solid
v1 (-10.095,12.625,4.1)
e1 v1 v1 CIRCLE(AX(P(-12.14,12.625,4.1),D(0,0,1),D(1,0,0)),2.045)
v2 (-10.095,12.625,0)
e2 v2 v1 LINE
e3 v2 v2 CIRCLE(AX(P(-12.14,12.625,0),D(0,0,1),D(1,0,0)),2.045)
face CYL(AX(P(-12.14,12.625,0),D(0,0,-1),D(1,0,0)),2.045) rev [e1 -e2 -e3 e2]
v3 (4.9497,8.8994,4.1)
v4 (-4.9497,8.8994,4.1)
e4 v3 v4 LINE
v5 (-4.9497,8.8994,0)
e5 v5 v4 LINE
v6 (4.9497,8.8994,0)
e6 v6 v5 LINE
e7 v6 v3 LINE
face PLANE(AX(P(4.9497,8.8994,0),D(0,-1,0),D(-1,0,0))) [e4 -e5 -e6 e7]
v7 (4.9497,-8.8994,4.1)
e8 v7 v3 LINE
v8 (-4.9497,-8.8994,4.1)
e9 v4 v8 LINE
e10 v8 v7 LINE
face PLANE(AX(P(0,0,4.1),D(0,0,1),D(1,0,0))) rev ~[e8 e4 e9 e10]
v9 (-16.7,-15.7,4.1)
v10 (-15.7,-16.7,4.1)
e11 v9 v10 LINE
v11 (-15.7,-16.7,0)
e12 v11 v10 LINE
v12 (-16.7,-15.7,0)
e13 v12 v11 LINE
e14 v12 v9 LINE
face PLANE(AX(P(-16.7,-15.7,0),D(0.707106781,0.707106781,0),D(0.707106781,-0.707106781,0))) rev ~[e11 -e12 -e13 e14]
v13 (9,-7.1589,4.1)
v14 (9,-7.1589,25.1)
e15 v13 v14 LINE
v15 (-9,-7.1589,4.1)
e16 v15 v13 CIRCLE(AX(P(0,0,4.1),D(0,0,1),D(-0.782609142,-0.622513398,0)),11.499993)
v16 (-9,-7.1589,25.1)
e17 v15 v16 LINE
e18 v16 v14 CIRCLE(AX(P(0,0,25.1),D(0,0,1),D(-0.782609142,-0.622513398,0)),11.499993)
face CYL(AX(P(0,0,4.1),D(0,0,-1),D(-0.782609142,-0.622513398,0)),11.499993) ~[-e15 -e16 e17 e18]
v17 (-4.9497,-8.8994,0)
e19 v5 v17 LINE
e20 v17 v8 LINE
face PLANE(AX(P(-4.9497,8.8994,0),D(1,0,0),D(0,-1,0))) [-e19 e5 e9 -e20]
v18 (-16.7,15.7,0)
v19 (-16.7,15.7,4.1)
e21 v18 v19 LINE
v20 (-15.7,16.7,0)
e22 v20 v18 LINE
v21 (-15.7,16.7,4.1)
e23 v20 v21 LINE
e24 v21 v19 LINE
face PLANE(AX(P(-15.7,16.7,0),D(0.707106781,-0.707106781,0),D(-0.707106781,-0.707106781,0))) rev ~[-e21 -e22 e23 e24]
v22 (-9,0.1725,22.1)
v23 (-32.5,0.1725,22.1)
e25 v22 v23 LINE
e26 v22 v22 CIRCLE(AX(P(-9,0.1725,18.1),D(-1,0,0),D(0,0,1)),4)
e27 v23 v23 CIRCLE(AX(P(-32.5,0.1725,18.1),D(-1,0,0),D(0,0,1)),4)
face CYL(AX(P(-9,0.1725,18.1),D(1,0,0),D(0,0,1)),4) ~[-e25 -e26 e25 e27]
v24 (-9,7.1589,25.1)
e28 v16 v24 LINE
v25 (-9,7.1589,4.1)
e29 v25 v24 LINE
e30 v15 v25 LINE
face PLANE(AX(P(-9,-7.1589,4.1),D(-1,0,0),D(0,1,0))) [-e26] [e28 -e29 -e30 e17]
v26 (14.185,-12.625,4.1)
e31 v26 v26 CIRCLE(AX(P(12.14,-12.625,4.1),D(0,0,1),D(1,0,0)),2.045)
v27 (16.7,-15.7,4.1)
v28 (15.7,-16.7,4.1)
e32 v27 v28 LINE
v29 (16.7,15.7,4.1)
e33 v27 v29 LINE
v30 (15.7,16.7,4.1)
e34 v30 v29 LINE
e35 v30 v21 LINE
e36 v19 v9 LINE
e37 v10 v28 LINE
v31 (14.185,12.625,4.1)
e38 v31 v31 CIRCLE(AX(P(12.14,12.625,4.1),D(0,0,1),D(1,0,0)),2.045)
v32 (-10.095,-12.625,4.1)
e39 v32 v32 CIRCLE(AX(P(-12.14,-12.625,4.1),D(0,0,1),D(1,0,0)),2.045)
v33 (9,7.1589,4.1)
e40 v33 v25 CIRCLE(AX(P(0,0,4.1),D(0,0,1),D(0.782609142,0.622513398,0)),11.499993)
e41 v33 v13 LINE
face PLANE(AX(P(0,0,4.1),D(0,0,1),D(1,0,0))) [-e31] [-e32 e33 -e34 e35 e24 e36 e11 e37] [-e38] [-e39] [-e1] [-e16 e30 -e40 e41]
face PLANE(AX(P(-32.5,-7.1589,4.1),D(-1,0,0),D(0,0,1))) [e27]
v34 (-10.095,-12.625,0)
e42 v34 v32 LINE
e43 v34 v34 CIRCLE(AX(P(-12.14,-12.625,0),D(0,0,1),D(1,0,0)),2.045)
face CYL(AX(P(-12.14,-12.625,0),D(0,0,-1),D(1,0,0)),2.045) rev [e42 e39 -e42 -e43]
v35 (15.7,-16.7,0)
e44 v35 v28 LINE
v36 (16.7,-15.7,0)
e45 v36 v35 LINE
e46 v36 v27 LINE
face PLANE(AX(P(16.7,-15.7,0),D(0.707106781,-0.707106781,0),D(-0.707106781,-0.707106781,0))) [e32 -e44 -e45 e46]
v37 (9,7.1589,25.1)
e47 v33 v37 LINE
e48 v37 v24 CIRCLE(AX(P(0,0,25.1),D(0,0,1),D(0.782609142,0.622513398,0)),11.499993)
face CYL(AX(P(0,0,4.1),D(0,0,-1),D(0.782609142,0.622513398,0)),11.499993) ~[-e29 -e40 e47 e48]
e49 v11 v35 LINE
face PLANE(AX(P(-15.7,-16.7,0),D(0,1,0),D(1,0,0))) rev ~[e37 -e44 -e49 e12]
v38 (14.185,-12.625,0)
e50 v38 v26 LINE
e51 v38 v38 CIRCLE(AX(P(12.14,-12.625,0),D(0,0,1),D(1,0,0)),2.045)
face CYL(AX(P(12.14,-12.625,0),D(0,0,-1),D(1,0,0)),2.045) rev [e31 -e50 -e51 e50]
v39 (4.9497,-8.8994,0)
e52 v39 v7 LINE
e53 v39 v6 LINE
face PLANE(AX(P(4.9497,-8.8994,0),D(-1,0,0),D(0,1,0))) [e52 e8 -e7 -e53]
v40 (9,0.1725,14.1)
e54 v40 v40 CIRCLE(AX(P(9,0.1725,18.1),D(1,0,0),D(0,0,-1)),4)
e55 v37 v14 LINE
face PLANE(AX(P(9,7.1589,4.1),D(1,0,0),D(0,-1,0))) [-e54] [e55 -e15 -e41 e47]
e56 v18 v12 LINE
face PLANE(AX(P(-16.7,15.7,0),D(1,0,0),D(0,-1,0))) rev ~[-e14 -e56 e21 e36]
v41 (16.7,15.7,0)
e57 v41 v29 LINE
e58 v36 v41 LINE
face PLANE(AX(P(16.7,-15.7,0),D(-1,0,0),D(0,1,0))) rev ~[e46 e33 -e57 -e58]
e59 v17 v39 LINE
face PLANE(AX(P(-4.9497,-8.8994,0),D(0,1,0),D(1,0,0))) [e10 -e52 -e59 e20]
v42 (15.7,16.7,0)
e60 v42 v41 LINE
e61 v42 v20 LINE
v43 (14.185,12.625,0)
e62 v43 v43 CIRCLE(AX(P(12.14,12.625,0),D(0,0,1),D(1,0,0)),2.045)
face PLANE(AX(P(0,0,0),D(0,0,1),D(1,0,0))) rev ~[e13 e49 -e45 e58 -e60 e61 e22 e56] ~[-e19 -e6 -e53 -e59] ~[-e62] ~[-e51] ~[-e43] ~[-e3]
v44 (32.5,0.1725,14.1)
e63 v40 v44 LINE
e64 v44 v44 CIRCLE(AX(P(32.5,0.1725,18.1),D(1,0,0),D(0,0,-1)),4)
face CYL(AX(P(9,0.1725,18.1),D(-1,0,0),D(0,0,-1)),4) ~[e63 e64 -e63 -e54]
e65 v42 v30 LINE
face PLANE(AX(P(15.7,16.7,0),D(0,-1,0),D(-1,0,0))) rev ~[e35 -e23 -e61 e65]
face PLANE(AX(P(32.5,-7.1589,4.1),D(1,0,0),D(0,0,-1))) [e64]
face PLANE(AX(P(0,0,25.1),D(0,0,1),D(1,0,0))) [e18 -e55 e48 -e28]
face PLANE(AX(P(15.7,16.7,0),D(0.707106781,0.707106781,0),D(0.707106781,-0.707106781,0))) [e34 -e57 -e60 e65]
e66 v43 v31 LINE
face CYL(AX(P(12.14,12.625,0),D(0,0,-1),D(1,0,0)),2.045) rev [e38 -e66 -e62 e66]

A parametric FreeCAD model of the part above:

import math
import FreeCAD as App
import Part
import Sketcher
Q = App.Units.Quantity

doc = App.newDocument("Part")
body = doc.addObject("PartDesign::Body", "Body")

# Sketch on XY plane
sketch1 = doc.addObject("Sketcher::SketchObject", "Sketch")
body.addObject(sketch1)
sketch1.AttachmentSupport = (doc.XY_Plane, [""])
sketch1.MapMode = "FlatFace"
sketch1.addGeometry([
    Part.LineSegment(App.Vector(-16.7, -15.7, 0), App.Vector(-15.7, -16.7, 0)),  # 0
    Part.LineSegment(App.Vector(-15.7, -16.7, 0), App.Vector(15.7, -16.7, 0)),  # 1
    Part.LineSegment(App.Vector(15.7, -16.7, 0), App.Vector(16.7, -15.7, 0)),  # 2
    Part.LineSegment(App.Vector(16.7, -15.7, 0), App.Vector(16.7, 15.7, 0)),  # 3
    Part.LineSegment(App.Vector(16.7, 15.7, 0), App.Vector(15.7, 16.7, 0)),  # 4
    Part.LineSegment(App.Vector(15.7, 16.7, 0), App.Vector(-15.7, 16.7, 0)),  # 5
    Part.LineSegment(App.Vector(-15.7, 16.7, 0), App.Vector(-16.7, 15.7, 0)),  # 6
    Part.LineSegment(App.Vector(-16.7, 15.7, 0), App.Vector(-16.7, -15.7, 0)),  # 7
    Part.Circle(App.Vector(-12.1, -12.6, 0), App.Vector(0, 0, 1), 2),  # 8
    Part.Circle(App.Vector(12.1, -12.6, 0), App.Vector(0, 0, 1), 2),  # 9
    Part.Circle(App.Vector(-12.1, 12.6, 0), App.Vector(0, 0, 1), 2),  # 10
    Part.LineSegment(App.Vector(4.9, -8.9, 0), App.Vector(-4.9, -8.9, 0)),  # 11
    Part.LineSegment(App.Vector(-4.9, -8.9, 0), App.Vector(-4.9, 8.9, 0)),  # 12
    Part.LineSegment(App.Vector(-4.9, 8.9, 0), App.Vector(4.9, 8.9, 0)),  # 13
    Part.LineSegment(App.Vector(4.9, 8.9, 0), App.Vector(4.9, -8.9, 0)),  # 14
    Part.Circle(App.Vector(12.1, 12.6, 0), App.Vector(0, 0, 1), 2),  # 15
], False)
sketch1.addConstraint([
    Sketcher.Constraint("Coincident", 0, 2, 1, 1),
    Sketcher.Constraint("Coincident", 1, 2, 2, 1),
    Sketcher.Constraint("Coincident", 2, 2, 3, 1),
    Sketcher.Constraint("Coincident", 3, 2, 4, 1),
    Sketcher.Constraint("Coincident", 4, 2, 5, 1),
    Sketcher.Constraint("Coincident", 5, 2, 6, 1),
    Sketcher.Constraint("Coincident", 6, 2, 7, 1),
    Sketcher.Constraint("Coincident", 7, 2, 0, 1),
    Sketcher.Constraint("Coincident", 11, 2, 12, 1),
    Sketcher.Constraint("Coincident", 12, 2, 13, 1),
    Sketcher.Constraint("Coincident", 13, 2, 14, 1),
    Sketcher.Constraint("Coincident", 14, 2, 11, 1),
    Sketcher.Constraint("Horizontal", 1),
    Sketcher.Constraint("Vertical", 3),
    Sketcher.Constraint("Horizontal", 5),
    Sketcher.Constraint("Vertical", 7),
    Sketcher.Constraint("Horizontal", 11),
    Sketcher.Constraint("Vertical", 12),
    Sketcher.Constraint("Horizontal", 13),
    Sketcher.Constraint("Vertical", 14),
    Sketcher.Constraint("Equal", 8, 9),
    Sketcher.Constraint("Equal", 9, 10),
    Sketcher.Constraint("Equal", 10, 15),
    Sketcher.Constraint("Symmetric", 9, 3, 10, 3, -1, 1),
    Sketcher.Constraint("Symmetric", 8, 3, 15, 3, -1, 1),
    Sketcher.Constraint("Symmetric", 0, 2, 4, 2, -1, 1),
    Sketcher.Constraint("Symmetric", 2, 2, 6, 2, -1, 1),
    Sketcher.Constraint("Symmetric", 11, 2, 13, 2, -1, 1),
    Sketcher.Constraint("Symmetric", 8, 3, 9, 3, -2),
    Sketcher.Constraint("Perpendicular", 0, 2),
    Sketcher.Constraint("Perpendicular", 2, 4),
    Sketcher.Constraint("Perpendicular", 4, 6),
    Sketcher.Constraint("Horizontal", 3, 2, 6, 2),
    Sketcher.Constraint("Vertical", 1, 2, 4, 2),
    Sketcher.Constraint("Equal", 5, 3),
    Sketcher.Constraint("Diameter", 8, Q("4.09 mm")),
    Sketcher.Constraint("DistanceX", 1, 2, 2, 2, Q("1 mm")),
    Sketcher.Constraint("DistanceX", 8, 3, -1, 1, Q("12.14 mm")),
    Sketcher.Constraint("DistanceY", 8, 3, 10, 3, Q("25.25 mm")),
    Sketcher.Constraint("DistanceX", 1, 1, 1, 2, Q("31.4 mm")),
    Sketcher.Constraint("DistanceX", 11, 2, 11, 1, Q("9.8994 mm")),
    Sketcher.Constraint("DistanceY", 12, 1, 12, 2, Q("17.7988 mm")),
])
pad1 = doc.addObject("PartDesign::Pad", "Pad")
body.addObject(pad1)
pad1.Profile = sketch1
pad1.Length = 4.1

# Sketch on XY plane
sketch2 = doc.addObject("Sketcher::SketchObject", "Sketch001")
body.addObject(sketch2)
sketch2.AttachmentSupport = (doc.XY_Plane, [""])
sketch2.MapMode = "FlatFace"
sketch2.AttachmentOffset = App.Placement(App.Vector(0, 0, 4.1), App.Rotation())
sketch2.addGeometry([
    Part.LineSegment(App.Vector(9, -7, 0), App.Vector(9, 7, 0)),
    Part.ArcOfCircle(Part.Circle(App.Vector(0, 0, 0), App.Vector(0, 0, 1), 11), math.radians(38), math.radians(142)),
    Part.LineSegment(App.Vector(-9, 7, 0), App.Vector(-9, -7, 0)),
    Part.ArcOfCircle(Part.Circle(App.Vector(0, 0, 0), App.Vector(0, 0, 1), 11), math.radians(-142), math.radians(-38)),
], False)
sketch2.addConstraint([
    Sketcher.Constraint("Coincident", 0, 2, 1, 1),
    Sketcher.Constraint("Coincident", 1, 2, 2, 1),
    Sketcher.Constraint("Coincident", 2, 2, 3, 1),
    Sketcher.Constraint("Coincident", 3, 2, 0, 1),
    Sketcher.Constraint("Vertical", 0),
    Sketcher.Constraint("Vertical", 2),
    Sketcher.Constraint("Coincident", 1, 3, -1, 1),
    Sketcher.Constraint("Coincident", 3, 3, -1, 1),
    Sketcher.Constraint("Equal", 1, 3),
    Sketcher.Constraint("Horizontal", 0, 2, 1, 2),
    Sketcher.Constraint("Radius", 1, Q("11.5 mm")),
    Sketcher.Constraint("DistanceX", -1, 1, 0, 2, Q("9 mm")),
])
pad2 = doc.addObject("PartDesign::Pad", "Pad001")
body.addObject(pad2)
pad2.Profile = sketch2
pad2.Length = 21

# Sketch on YZ plane
sketch3 = doc.addObject("Sketcher::SketchObject", "Sketch002")
body.addObject(sketch3)
sketch3.AttachmentSupport = (doc.YZ_Plane, [""])
sketch3.MapMode = "FlatFace"
sketch3.AttachmentOffset = App.Placement(App.Vector(0, 0, 9), App.Rotation())
sketch3.addGeometry(Part.Circle(App.Vector(0.2, 18.1, 0), App.Vector(0, 0, 1), 4), False)
sketch3.addConstraint([
    Sketcher.Constraint("Diameter", 0, Q("8 mm")),
    Sketcher.Constraint("DistanceY", -1, 1, 0, 3, Q("18.1 mm")),
    Sketcher.Constraint("DistanceX", -1, 1, 0, 3, Q("0.1725 mm")),
])
pad3 = doc.addObject("PartDesign::Pad", "Pad002")
body.addObject(pad3)
pad3.Profile = sketch3
pad3.Length = 23.5

# Sketch on YZ plane
sketch4 = doc.addObject("Sketcher::SketchObject", "Sketch003")
body.addObject(sketch4)
sketch4.AttachmentSupport = (doc.YZ_Plane, [""])
sketch4.MapMode = "FlatFace"
sketch4.AttachmentOffset = App.Placement(App.Vector(0, 0, -9), App.Rotation())
sketch4.addGeometry(Part.Circle(App.Vector(0.2, 18.1, 0), App.Vector(0, 0, 1), 4), False)
sketch4.addConstraint([
    Sketcher.Constraint("Diameter", 0, Q("8 mm")),
    Sketcher.Constraint("DistanceY", -1, 1, 0, 3, Q("18.1 mm")),
    Sketcher.Constraint("DistanceX", -1, 1, 0, 3, Q("0.1725 mm")),
])
pad4 = doc.addObject("PartDesign::Pad", "Pad003")
body.addObject(pad4)
pad4.Profile = sketch4
pad4.Length = 23.5
pad4.Reversed = True

doc.recompute()
